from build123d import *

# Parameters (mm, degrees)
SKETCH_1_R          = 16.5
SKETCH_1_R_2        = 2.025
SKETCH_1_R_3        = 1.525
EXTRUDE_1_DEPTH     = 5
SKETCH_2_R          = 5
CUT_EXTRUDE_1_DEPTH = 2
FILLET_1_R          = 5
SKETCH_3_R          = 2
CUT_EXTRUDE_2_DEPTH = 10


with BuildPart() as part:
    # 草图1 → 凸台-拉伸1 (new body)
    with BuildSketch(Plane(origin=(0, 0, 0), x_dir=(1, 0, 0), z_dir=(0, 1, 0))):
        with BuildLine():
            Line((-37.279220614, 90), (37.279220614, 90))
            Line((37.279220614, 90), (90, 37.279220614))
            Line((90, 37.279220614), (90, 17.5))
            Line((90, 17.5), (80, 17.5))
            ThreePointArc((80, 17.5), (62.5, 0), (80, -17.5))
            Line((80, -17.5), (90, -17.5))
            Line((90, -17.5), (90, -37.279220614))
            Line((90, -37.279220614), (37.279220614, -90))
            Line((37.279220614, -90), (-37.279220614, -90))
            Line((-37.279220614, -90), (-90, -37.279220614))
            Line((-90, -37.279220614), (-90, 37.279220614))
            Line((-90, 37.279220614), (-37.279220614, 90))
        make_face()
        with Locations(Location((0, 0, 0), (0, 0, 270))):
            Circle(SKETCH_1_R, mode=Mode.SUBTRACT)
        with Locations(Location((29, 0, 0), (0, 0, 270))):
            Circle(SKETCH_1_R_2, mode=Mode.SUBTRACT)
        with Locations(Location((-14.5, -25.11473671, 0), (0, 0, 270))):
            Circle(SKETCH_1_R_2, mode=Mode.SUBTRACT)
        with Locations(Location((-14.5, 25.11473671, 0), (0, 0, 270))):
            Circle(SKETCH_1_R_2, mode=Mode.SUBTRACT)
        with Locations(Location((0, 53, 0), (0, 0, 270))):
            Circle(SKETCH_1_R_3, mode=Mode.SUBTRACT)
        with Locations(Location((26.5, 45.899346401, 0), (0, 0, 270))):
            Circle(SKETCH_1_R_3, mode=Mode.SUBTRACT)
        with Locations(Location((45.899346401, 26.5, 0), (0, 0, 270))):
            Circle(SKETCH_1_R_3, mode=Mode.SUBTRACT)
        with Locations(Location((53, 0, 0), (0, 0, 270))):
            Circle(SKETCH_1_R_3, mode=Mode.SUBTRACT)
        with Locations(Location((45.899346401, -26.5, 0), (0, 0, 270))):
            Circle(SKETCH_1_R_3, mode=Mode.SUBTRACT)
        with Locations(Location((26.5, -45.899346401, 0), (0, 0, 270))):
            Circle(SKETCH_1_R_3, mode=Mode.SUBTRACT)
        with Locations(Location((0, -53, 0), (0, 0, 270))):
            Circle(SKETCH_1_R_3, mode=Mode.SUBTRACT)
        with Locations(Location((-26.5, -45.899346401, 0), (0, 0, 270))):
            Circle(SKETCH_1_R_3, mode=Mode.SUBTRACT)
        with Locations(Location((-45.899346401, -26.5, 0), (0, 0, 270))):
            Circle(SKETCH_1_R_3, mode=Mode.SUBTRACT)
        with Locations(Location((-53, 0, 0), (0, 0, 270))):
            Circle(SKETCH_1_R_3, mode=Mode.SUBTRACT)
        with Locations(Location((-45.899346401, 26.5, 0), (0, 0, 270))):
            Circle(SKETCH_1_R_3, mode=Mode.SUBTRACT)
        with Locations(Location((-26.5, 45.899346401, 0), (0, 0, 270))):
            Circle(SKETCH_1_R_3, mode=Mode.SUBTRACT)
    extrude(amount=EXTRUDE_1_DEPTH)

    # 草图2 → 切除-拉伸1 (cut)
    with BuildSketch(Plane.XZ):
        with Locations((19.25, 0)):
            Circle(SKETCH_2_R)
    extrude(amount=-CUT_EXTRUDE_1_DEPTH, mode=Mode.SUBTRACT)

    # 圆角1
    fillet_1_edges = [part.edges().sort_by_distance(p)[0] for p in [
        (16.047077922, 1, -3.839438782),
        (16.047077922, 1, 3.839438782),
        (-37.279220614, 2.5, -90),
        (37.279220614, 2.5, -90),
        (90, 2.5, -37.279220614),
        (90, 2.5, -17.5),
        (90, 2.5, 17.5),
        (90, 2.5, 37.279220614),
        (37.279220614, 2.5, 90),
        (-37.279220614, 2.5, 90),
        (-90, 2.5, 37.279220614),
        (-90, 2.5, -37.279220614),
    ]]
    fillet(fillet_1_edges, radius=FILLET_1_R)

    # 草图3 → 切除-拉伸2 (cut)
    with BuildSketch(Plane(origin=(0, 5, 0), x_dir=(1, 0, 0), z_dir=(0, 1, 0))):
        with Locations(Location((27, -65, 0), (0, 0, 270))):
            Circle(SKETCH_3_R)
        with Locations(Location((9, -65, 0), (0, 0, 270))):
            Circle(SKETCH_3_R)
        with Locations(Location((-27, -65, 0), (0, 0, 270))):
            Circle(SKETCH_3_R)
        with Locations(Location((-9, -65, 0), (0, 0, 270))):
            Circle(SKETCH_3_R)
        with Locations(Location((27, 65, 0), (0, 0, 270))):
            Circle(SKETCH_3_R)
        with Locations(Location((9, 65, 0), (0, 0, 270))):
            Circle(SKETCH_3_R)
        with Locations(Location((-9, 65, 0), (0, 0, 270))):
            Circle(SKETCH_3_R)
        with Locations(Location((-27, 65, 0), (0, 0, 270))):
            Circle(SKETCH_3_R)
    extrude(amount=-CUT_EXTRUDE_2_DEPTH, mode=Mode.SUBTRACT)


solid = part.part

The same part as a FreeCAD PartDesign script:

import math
import FreeCAD as App
import Part
import Sketcher
Q = App.Units.Quantity


def edges_at(feature, points):
    """Names of the edges that pass closest to the given points."""
    edges = feature.Shape.Edges
    near = lambda p: min(range(len(edges)), key=lambda i: edges[i].distToShape(Part.Vertex(*p))[0])
    return sorted({f"Edge{near(p) + 1}" for p in points})

doc = App.newDocument("Part")
body = doc.addObject("PartDesign::Body", "Body")

# Sketch on XZ plane
sketch1 = body.newObject("Sketcher::SketchObject", "Sketch")
sketch1.AttachmentSupport = (doc.getObject("XZ_Plane"), [""])
sketch1.MapMode = "FlatFace"
sketch1.addGeometry(Part.LineSegment(App.Vector(37.3, -90, 0), App.Vector(-37.3, -90, 0)), False)
sketch1.addGeometry(Part.LineSegment(App.Vector(-37.3, -90, 0), App.Vector(-90, -37.3, 0)), False)
sketch1.addGeometry(Part.LineSegment(App.Vector(-90, -37.3, 0), App.Vector(-90, 37.3, 0)), False)
sketch1.addGeometry(Part.LineSegment(App.Vector(-90, 37.3, 0), App.Vector(-37.3, 90, 0)), False)
sketch1.addGeometry(Part.LineSegment(App.Vector(-37.3, 90, 0), App.Vector(37.3, 90, 0)), False)
sketch1.addGeometry(Part.LineSegment(App.Vector(37.3, 90, 0), App.Vector(90, 37.3, 0)), False)
sketch1.addGeometry(Part.LineSegment(App.Vector(90, 37.3, 0), App.Vector(90, 17.5, 0)), False)
sketch1.addGeometry(Part.LineSegment(App.Vector(90, 17.5, 0), App.Vector(80, 17.5, 0)), False)
sketch1.addGeometry(Part.ArcOfCircle(Part.Circle(App.Vector(80, 0, 0), App.Vector(0, 0, 1), 17.5), math.radians(90), math.radians(270)), False)
sketch1.addGeometry(Part.LineSegment(App.Vector(80, -17.5, 0), App.Vector(90, -17.5, 0)), False)
sketch1.addGeometry(Part.LineSegment(App.Vector(90, -17.5, 0), App.Vector(90, -37.3, 0)), False)
sketch1.addGeometry(Part.LineSegment(App.Vector(90, -37.3, 0), App.Vector(37.3, -90, 0)), False)
sketch1.addGeometry(Part.Circle(App.Vector(26.5, 45.9, 0), App.Vector(0, 0, 1), 1.5), False)
sketch1.addGeometry(Part.Circle(App.Vector(0, 53, 0), App.Vector(0, 0, 1), 1.5), False)
sketch1.addGeometry(Part.Circle(App.Vector(45.9, 26.5, 0), App.Vector(0, 0, 1), 1.5), False)
sketch1.addGeometry(Part.Circle(App.Vector(53, 0, 0), App.Vector(0, 0, 1), 1.5), False)
sketch1.addGeometry(Part.Circle(App.Vector(29, 0, 0), App.Vector(0, 0, 1), 2), False)
sketch1.addGeometry(Part.Circle(App.Vector(0, 0, 0), App.Vector(0, 0, 1), 16.5), False)
sketch1.addGeometry(Part.Circle(App.Vector(-26.5, 45.9, 0), App.Vector(0, 0, 1), 1.5), False)
sketch1.addGeometry(Part.Circle(App.Vector(-14.5, 25.1, 0), App.Vector(0, 0, 1), 2), False)
sketch1.addGeometry(Part.Circle(App.Vector(-45.9, 26.5, 0), App.Vector(0, 0, 1), 1.5), False)
sketch1.addGeometry(Part.Circle(App.Vector(-53, 0, 0), App.Vector(0, 0, 1), 1.5), False)
sketch1.addGeometry(Part.Circle(App.Vector(45.9, -26.5, 0), App.Vector(0, 0, 1), 1.5), False)
sketch1.addGeometry(Part.Circle(App.Vector(26.5, -45.9, 0), App.Vector(0, 0, 1), 1.5), False)
sketch1.addGeometry(Part.Circle(App.Vector(0, -53, 0), App.Vector(0, 0, 1), 1.5), False)
sketch1.addGeometry(Part.Circle(App.Vector(-14.5, -25.1, 0), App.Vector(0, 0, 1), 2), False)
sketch1.addGeometry(Part.Circle(App.Vector(-45.9, -26.5, 0), App.Vector(0, 0, 1), 1.5), False)
sketch1.addGeometry(Part.Circle(App.Vector(-26.5, -45.9, 0), App.Vector(0, 0, 1), 1.5), False)
sketch1.addConstraint(Sketcher.Constraint("Coincident", 0, 2, 1, 1))
sketch1.addConstraint(Sketcher.Constraint("Coincident", 1, 2, 2, 1))
sketch1.addConstraint(Sketcher.Constraint("Coincident", 2, 2, 3, 1))
sketch1.addConstraint(Sketcher.Constraint("Coincident", 3, 2, 4, 1))
sketch1.addConstraint(Sketcher.Constraint("Coincident", 4, 2, 5, 1))
sketch1.addConstraint(Sketcher.Constraint("Coincident", 5, 2, 6, 1))
sketch1.addConstraint(Sketcher.Constraint("Coincident", 6, 2, 7, 1))
sketch1.addConstraint(Sketcher.Constraint("Tangent", 7, 2, 8, 1))
sketch1.addConstraint(Sketcher.Constraint("Tangent", 8, 2, 9, 1))
sketch1.addConstraint(Sketcher.Constraint("Coincident", 9, 2, 10, 1))
sketch1.addConstraint(Sketcher.Constraint("Coincident", 10, 2, 11, 1))
sketch1.addConstraint(Sketcher.Constraint("Coincident", 11, 2, 0, 1))
sketch1.addConstraint(Sketcher.Constraint("Horizontal", 0))
sketch1.addConstraint(Sketcher.Constraint("Vertical", 2))
sketch1.addConstraint(Sketcher.Constraint("Horizontal", 4))
sketch1.addConstraint(Sketcher.Constraint("Vertical", 6))
sketch1.addConstraint(Sketcher.Constraint("Horizontal", 7))
sketch1.addConstraint(Sketcher.Constraint("Horizontal", 9))
sketch1.addConstraint(Sketcher.Constraint("Vertical", 10))
sketch1.addConstraint(Sketcher.Constraint("Coincident", 17, 3, -1, 1))
sketch1.addConstraint(Sketcher.Constraint("Equal", 12, 13))
sketch1.addConstraint(Sketcher.Constraint("Equal", 13, 14))
sketch1.addConstraint(Sketcher.Constraint("Equal", 14, 15))
sketch1.addConstraint(Sketcher.Constraint("Equal", 15, 18))
sketch1.addConstraint(Sketcher.Constraint("Equal", 16, 19))
sketch1.addConstraint(Sketcher.Constraint("Equal", 18, 20))
sketch1.addConstraint(Sketcher.Constraint("Equal", 20, 21))
sketch1.addConstraint(Sketcher.Constraint("Equal", 21, 22))
sketch1.addConstraint(Sketcher.Constraint("Equal", 22, 23))
sketch1.addConstraint(Sketcher.Constraint("Equal", 23, 24))
sketch1.addConstraint(Sketcher.Constraint("Equal", 19, 25))
sketch1.addConstraint(Sketcher.Constraint("Equal", 24, 26))
sketch1.addConstraint(Sketcher.Constraint("Equal", 26, 27))
sketch1.addConstraint(Sketcher.Constraint("Symmetric", 15, 3, 21, 3, -1, 1))
sketch1.addConstraint(Sketcher.Constraint("Symmetric", 20, 3, 22, 3, -1, 1))
sketch1.addConstraint(Sketcher.Constraint("Symmetric", 18, 3, 23, 3, -1, 1))
sketch1.addConstraint(Sketcher.Constraint("Symmetric", 13, 3, 24, 3, -1, 1))
sketch1.addConstraint(Sketcher.Constraint("Symmetric", 14, 3, 26, 3, -1, 1))
sketch1.addConstraint(Sketcher.Constraint("Symmetric", 12, 3, 27, 3, -1, 1))
sketch1.addConstraint(Sketcher.Constraint("Symmetric", 0, 2, 4, 2, -1, 1))
sketch1.addConstraint(Sketcher.Constraint("Symmetric", 1, 2, 5, 2, -1, 1))
sketch1.addConstraint(Sketcher.Constraint("Symmetric", 2, 2, 10, 2, -1, 1))
sketch1.addConstraint(Sketcher.Constraint("Symmetric", 12, 3, 18, 3, -2))
sketch1.addConstraint(Sketcher.Constraint("Symmetric", 14, 3, 20, 3, -2))
sketch1.addConstraint(Sketcher.Constraint("Symmetric", 19, 3, 25, 3, -1))
sketch1.addConstraint(Sketcher.Constraint("PointOnObject", 8, 3, -1))
sketch1.addConstraint(Sketcher.Constraint("PointOnObject", 13, 3, -2))
sketch1.addConstraint(Sketcher.Constraint("PointOnObject", 15, 3, -1))
sketch1.addConstraint(Sketcher.Constraint("PointOnObject", 16, 3, -1))
sketch1.addConstraint(Sketcher.Constraint("Perpendicular", 1, 3))
sketch1.addConstraint(Sketcher.Constraint("Perpendicular", 5, 11))
sketch1.addConstraint(Sketcher.Constraint("Horizontal", 2, 2, 5, 2))
sketch1.addConstraint(Sketcher.Constraint("Vertical", 0, 2, 3, 2))
sketch1.addConstraint(Sketcher.Constraint("Equal", 4, 2))
sketch1.addConstraint(Sketcher.Constraint("Diameter", 17, Q("33 mm")))
sketch1.addConstraint(Sketcher.Constraint("Radius", 8, Q("17.5 mm")))
sketch1.addConstraint(Sketcher.Constraint("Diameter", 12, Q("3.05 mm")))
sketch1.addConstraint(Sketcher.Constraint("Diameter", 16, Q("4.05 mm")))
sketch1.addConstraint(Sketcher.Constraint("DistanceX", 7, 2, 7, 1, Q("10 mm")))
sketch1.addConstraint(Sketcher.Constraint("DistanceX", -1, 1, 8, 3, Q("80 mm")))
sketch1.addConstraint(Sketcher.Constraint("DistanceY", -1, 1, 13, 3, Q("53 mm")))
sketch1.addConstraint(Sketcher.Constraint("DistanceX", -1, 1, 15, 3, Q("53 mm")))
sketch1.addConstraint(Sketcher.Constraint("DistanceX", -1, 1, 16, 3, Q("29 mm")))
sketch1.addConstraint(Sketcher.Constraint("DistanceX", 18, 3, 12, 3, Q("53 mm")))
sketch1.addConstraint(Sketcher.Constraint("DistanceX", 18, 3, 19, 3, Q("12 mm")))
sketch1.addConstraint(Sketcher.Constraint("DistanceY", 22, 3, 14, 3, Q("53 mm")))
sketch1.addConstraint(Sketcher.Constraint("DistanceX", 0, 2, 0, 1, Q("74.558441 mm")))
sketch1.addConstraint(Sketcher.Constraint("DistanceY", 19, 3, 18, 3, Q("20.78461 mm")))
sketch1.addConstraint(Sketcher.Constraint("DistanceY", -1, 1, 12, 3, Q("45.899346 mm")))
sketch1.addConstraint(Sketcher.Constraint("DistanceX", -1, 1, 14, 3, Q("45.899346 mm")))
pad1 = body.newObject("PartDesign::Pad", "Pad")
pad1.Profile = sketch1
pad1.Length = 5
pad1.Reversed = True

# Sketch on XZ plane
sketch2 = body.newObject("Sketcher::SketchObject", "Sketch001")
sketch2.AttachmentSupport = (doc.getObject("XZ_Plane"), [""])
sketch2.MapMode = "FlatFace"
sketch2.addGeometry(Part.Circle(App.Vector(19, 0, 0), App.Vector(0, 0, 1), 5), False)
sketch2.addConstraint(Sketcher.Constraint("PointOnObject", 0, 3, -1))
sketch2.addConstraint(Sketcher.Constraint("Diameter", 0, Q("10 mm")))
sketch2.addConstraint(Sketcher.Constraint("DistanceX", -1, 1, 0, 3, Q("19.25 mm")))
pocket1 = body.newObject("PartDesign::Pocket", "Pocket")
pocket1.Profile = sketch2
pocket1.Length = 2
doc.recompute()

fillet = body.newObject("PartDesign::Fillet", "Fillet")
fillet.Base = (pocket1, edges_at(pocket1, [
    (16.047, 1, -3.839),
    (16.047, 1, 3.839),
    (-37.279, 2.5, -90),
    (37.279, 2.5, -90),
    (90, 2.5, -37.279),
    (90, 2.5, -17.5),
    (90, 2.5, 17.5),
    (90, 2.5, 37.279),
    (37.279, 2.5, 90),
    (-37.279, 2.5, 90),
    (-90, 2.5, 37.279),
    (-90, 2.5, -37.279),
]))
fillet.Radius = 5

# Sketch on XZ plane
sketch3 = body.newObject("Sketcher::SketchObject", "Sketch002")
sketch3.AttachmentSupport = (doc.getObject("XZ_Plane"), [""])
sketch3.MapMode = "FlatFace"
sketch3.AttachmentOffset = App.Placement(App.Vector(0, 0, -5), App.Rotation())
sketch3.addGeometry(Part.Circle(App.Vector(27, 65, 0), App.Vector(0, 0, 1), 2), False)
sketch3.addGeometry(Part.Circle(App.Vector(9, 65, 0), App.Vector(0, 0, 1), 2), False)
sketch3.addGeometry(Part.Circle(App.Vector(-27, 65, 0), App.Vector(0, 0, 1), 2), False)
sketch3.addGeometry(Part.Circle(App.Vector(-9, 65, 0), App.Vector(0, 0, 1), 2), False)
sketch3.addGeometry(Part.Circle(App.Vector(27, -65, 0), App.Vector(0, 0, 1), 2), False)
sketch3.addGeometry(Part.Circle(App.Vector(9, -65, 0), App.Vector(0, 0, 1), 2), False)
sketch3.addGeometry(Part.Circle(App.Vector(-9, -65, 0), App.Vector(0, 0, 1), 2), False)
sketch3.addGeometry(Part.Circle(App.Vector(-27, -65, 0), App.Vector(0, 0, 1), 2), False)
sketch3.addConstraint(Sketcher.Constraint("Equal", 0, 1))
sketch3.addConstraint(Sketcher.Constraint("Equal", 1, 2))
sketch3.addConstraint(Sketcher.Constraint("Equal", 2, 3))
sketch3.addConstraint(Sketcher.Constraint("Equal", 3, 4))
sketch3.addConstraint(Sketcher.Constraint("Equal", 4, 5))
sketch3.addConstraint(Sketcher.Constraint("Equal", 5, 6))
sketch3.addConstraint(Sketcher.Constraint("Equal", 6, 7))
sketch3.addConstraint(Sketcher.Constraint("Symmetric", 2, 3, 4, 3, -1, 1))
sketch3.addConstraint(Sketcher.Constraint("Symmetric", 3, 3, 5, 3, -1, 1))
sketch3.addConstraint(Sketcher.Constraint("Symmetric", 1, 3, 6, 3, -1, 1))
sketch3.addConstraint(Sketcher.Constraint("Symmetric", 0, 3, 7, 3, -1, 1))
sketch3.addConstraint(Sketcher.Constraint("Symmetric", 0, 3, 2, 3, -2))
sketch3.addConstraint(Sketcher.Constraint("Symmetric", 1, 3, 3, 3, -2))
sketch3.addConstraint(Sketcher.Constraint("Horizontal", 0, 3, 1, 3))
sketch3.addConstraint(Sketcher.Constraint("Diameter", 0, Q("4 mm")))
sketch3.addConstraint(Sketcher.Constraint("DistanceX", -1, 1, 0, 3, Q("27 mm")))
sketch3.addConstraint(Sketcher.Constraint("DistanceY", -1, 1, 0, 3, Q("65 mm")))
sketch3.addConstraint(Sketcher.Constraint("DistanceX", -1, 1, 1, 3, Q("9 mm")))
pocket2 = body.newObject("PartDesign::Pocket", "Pocket001")
pocket2.Profile = sketch3
pocket2.Length = 10
pocket2.Reversed = True

doc.recompute()
